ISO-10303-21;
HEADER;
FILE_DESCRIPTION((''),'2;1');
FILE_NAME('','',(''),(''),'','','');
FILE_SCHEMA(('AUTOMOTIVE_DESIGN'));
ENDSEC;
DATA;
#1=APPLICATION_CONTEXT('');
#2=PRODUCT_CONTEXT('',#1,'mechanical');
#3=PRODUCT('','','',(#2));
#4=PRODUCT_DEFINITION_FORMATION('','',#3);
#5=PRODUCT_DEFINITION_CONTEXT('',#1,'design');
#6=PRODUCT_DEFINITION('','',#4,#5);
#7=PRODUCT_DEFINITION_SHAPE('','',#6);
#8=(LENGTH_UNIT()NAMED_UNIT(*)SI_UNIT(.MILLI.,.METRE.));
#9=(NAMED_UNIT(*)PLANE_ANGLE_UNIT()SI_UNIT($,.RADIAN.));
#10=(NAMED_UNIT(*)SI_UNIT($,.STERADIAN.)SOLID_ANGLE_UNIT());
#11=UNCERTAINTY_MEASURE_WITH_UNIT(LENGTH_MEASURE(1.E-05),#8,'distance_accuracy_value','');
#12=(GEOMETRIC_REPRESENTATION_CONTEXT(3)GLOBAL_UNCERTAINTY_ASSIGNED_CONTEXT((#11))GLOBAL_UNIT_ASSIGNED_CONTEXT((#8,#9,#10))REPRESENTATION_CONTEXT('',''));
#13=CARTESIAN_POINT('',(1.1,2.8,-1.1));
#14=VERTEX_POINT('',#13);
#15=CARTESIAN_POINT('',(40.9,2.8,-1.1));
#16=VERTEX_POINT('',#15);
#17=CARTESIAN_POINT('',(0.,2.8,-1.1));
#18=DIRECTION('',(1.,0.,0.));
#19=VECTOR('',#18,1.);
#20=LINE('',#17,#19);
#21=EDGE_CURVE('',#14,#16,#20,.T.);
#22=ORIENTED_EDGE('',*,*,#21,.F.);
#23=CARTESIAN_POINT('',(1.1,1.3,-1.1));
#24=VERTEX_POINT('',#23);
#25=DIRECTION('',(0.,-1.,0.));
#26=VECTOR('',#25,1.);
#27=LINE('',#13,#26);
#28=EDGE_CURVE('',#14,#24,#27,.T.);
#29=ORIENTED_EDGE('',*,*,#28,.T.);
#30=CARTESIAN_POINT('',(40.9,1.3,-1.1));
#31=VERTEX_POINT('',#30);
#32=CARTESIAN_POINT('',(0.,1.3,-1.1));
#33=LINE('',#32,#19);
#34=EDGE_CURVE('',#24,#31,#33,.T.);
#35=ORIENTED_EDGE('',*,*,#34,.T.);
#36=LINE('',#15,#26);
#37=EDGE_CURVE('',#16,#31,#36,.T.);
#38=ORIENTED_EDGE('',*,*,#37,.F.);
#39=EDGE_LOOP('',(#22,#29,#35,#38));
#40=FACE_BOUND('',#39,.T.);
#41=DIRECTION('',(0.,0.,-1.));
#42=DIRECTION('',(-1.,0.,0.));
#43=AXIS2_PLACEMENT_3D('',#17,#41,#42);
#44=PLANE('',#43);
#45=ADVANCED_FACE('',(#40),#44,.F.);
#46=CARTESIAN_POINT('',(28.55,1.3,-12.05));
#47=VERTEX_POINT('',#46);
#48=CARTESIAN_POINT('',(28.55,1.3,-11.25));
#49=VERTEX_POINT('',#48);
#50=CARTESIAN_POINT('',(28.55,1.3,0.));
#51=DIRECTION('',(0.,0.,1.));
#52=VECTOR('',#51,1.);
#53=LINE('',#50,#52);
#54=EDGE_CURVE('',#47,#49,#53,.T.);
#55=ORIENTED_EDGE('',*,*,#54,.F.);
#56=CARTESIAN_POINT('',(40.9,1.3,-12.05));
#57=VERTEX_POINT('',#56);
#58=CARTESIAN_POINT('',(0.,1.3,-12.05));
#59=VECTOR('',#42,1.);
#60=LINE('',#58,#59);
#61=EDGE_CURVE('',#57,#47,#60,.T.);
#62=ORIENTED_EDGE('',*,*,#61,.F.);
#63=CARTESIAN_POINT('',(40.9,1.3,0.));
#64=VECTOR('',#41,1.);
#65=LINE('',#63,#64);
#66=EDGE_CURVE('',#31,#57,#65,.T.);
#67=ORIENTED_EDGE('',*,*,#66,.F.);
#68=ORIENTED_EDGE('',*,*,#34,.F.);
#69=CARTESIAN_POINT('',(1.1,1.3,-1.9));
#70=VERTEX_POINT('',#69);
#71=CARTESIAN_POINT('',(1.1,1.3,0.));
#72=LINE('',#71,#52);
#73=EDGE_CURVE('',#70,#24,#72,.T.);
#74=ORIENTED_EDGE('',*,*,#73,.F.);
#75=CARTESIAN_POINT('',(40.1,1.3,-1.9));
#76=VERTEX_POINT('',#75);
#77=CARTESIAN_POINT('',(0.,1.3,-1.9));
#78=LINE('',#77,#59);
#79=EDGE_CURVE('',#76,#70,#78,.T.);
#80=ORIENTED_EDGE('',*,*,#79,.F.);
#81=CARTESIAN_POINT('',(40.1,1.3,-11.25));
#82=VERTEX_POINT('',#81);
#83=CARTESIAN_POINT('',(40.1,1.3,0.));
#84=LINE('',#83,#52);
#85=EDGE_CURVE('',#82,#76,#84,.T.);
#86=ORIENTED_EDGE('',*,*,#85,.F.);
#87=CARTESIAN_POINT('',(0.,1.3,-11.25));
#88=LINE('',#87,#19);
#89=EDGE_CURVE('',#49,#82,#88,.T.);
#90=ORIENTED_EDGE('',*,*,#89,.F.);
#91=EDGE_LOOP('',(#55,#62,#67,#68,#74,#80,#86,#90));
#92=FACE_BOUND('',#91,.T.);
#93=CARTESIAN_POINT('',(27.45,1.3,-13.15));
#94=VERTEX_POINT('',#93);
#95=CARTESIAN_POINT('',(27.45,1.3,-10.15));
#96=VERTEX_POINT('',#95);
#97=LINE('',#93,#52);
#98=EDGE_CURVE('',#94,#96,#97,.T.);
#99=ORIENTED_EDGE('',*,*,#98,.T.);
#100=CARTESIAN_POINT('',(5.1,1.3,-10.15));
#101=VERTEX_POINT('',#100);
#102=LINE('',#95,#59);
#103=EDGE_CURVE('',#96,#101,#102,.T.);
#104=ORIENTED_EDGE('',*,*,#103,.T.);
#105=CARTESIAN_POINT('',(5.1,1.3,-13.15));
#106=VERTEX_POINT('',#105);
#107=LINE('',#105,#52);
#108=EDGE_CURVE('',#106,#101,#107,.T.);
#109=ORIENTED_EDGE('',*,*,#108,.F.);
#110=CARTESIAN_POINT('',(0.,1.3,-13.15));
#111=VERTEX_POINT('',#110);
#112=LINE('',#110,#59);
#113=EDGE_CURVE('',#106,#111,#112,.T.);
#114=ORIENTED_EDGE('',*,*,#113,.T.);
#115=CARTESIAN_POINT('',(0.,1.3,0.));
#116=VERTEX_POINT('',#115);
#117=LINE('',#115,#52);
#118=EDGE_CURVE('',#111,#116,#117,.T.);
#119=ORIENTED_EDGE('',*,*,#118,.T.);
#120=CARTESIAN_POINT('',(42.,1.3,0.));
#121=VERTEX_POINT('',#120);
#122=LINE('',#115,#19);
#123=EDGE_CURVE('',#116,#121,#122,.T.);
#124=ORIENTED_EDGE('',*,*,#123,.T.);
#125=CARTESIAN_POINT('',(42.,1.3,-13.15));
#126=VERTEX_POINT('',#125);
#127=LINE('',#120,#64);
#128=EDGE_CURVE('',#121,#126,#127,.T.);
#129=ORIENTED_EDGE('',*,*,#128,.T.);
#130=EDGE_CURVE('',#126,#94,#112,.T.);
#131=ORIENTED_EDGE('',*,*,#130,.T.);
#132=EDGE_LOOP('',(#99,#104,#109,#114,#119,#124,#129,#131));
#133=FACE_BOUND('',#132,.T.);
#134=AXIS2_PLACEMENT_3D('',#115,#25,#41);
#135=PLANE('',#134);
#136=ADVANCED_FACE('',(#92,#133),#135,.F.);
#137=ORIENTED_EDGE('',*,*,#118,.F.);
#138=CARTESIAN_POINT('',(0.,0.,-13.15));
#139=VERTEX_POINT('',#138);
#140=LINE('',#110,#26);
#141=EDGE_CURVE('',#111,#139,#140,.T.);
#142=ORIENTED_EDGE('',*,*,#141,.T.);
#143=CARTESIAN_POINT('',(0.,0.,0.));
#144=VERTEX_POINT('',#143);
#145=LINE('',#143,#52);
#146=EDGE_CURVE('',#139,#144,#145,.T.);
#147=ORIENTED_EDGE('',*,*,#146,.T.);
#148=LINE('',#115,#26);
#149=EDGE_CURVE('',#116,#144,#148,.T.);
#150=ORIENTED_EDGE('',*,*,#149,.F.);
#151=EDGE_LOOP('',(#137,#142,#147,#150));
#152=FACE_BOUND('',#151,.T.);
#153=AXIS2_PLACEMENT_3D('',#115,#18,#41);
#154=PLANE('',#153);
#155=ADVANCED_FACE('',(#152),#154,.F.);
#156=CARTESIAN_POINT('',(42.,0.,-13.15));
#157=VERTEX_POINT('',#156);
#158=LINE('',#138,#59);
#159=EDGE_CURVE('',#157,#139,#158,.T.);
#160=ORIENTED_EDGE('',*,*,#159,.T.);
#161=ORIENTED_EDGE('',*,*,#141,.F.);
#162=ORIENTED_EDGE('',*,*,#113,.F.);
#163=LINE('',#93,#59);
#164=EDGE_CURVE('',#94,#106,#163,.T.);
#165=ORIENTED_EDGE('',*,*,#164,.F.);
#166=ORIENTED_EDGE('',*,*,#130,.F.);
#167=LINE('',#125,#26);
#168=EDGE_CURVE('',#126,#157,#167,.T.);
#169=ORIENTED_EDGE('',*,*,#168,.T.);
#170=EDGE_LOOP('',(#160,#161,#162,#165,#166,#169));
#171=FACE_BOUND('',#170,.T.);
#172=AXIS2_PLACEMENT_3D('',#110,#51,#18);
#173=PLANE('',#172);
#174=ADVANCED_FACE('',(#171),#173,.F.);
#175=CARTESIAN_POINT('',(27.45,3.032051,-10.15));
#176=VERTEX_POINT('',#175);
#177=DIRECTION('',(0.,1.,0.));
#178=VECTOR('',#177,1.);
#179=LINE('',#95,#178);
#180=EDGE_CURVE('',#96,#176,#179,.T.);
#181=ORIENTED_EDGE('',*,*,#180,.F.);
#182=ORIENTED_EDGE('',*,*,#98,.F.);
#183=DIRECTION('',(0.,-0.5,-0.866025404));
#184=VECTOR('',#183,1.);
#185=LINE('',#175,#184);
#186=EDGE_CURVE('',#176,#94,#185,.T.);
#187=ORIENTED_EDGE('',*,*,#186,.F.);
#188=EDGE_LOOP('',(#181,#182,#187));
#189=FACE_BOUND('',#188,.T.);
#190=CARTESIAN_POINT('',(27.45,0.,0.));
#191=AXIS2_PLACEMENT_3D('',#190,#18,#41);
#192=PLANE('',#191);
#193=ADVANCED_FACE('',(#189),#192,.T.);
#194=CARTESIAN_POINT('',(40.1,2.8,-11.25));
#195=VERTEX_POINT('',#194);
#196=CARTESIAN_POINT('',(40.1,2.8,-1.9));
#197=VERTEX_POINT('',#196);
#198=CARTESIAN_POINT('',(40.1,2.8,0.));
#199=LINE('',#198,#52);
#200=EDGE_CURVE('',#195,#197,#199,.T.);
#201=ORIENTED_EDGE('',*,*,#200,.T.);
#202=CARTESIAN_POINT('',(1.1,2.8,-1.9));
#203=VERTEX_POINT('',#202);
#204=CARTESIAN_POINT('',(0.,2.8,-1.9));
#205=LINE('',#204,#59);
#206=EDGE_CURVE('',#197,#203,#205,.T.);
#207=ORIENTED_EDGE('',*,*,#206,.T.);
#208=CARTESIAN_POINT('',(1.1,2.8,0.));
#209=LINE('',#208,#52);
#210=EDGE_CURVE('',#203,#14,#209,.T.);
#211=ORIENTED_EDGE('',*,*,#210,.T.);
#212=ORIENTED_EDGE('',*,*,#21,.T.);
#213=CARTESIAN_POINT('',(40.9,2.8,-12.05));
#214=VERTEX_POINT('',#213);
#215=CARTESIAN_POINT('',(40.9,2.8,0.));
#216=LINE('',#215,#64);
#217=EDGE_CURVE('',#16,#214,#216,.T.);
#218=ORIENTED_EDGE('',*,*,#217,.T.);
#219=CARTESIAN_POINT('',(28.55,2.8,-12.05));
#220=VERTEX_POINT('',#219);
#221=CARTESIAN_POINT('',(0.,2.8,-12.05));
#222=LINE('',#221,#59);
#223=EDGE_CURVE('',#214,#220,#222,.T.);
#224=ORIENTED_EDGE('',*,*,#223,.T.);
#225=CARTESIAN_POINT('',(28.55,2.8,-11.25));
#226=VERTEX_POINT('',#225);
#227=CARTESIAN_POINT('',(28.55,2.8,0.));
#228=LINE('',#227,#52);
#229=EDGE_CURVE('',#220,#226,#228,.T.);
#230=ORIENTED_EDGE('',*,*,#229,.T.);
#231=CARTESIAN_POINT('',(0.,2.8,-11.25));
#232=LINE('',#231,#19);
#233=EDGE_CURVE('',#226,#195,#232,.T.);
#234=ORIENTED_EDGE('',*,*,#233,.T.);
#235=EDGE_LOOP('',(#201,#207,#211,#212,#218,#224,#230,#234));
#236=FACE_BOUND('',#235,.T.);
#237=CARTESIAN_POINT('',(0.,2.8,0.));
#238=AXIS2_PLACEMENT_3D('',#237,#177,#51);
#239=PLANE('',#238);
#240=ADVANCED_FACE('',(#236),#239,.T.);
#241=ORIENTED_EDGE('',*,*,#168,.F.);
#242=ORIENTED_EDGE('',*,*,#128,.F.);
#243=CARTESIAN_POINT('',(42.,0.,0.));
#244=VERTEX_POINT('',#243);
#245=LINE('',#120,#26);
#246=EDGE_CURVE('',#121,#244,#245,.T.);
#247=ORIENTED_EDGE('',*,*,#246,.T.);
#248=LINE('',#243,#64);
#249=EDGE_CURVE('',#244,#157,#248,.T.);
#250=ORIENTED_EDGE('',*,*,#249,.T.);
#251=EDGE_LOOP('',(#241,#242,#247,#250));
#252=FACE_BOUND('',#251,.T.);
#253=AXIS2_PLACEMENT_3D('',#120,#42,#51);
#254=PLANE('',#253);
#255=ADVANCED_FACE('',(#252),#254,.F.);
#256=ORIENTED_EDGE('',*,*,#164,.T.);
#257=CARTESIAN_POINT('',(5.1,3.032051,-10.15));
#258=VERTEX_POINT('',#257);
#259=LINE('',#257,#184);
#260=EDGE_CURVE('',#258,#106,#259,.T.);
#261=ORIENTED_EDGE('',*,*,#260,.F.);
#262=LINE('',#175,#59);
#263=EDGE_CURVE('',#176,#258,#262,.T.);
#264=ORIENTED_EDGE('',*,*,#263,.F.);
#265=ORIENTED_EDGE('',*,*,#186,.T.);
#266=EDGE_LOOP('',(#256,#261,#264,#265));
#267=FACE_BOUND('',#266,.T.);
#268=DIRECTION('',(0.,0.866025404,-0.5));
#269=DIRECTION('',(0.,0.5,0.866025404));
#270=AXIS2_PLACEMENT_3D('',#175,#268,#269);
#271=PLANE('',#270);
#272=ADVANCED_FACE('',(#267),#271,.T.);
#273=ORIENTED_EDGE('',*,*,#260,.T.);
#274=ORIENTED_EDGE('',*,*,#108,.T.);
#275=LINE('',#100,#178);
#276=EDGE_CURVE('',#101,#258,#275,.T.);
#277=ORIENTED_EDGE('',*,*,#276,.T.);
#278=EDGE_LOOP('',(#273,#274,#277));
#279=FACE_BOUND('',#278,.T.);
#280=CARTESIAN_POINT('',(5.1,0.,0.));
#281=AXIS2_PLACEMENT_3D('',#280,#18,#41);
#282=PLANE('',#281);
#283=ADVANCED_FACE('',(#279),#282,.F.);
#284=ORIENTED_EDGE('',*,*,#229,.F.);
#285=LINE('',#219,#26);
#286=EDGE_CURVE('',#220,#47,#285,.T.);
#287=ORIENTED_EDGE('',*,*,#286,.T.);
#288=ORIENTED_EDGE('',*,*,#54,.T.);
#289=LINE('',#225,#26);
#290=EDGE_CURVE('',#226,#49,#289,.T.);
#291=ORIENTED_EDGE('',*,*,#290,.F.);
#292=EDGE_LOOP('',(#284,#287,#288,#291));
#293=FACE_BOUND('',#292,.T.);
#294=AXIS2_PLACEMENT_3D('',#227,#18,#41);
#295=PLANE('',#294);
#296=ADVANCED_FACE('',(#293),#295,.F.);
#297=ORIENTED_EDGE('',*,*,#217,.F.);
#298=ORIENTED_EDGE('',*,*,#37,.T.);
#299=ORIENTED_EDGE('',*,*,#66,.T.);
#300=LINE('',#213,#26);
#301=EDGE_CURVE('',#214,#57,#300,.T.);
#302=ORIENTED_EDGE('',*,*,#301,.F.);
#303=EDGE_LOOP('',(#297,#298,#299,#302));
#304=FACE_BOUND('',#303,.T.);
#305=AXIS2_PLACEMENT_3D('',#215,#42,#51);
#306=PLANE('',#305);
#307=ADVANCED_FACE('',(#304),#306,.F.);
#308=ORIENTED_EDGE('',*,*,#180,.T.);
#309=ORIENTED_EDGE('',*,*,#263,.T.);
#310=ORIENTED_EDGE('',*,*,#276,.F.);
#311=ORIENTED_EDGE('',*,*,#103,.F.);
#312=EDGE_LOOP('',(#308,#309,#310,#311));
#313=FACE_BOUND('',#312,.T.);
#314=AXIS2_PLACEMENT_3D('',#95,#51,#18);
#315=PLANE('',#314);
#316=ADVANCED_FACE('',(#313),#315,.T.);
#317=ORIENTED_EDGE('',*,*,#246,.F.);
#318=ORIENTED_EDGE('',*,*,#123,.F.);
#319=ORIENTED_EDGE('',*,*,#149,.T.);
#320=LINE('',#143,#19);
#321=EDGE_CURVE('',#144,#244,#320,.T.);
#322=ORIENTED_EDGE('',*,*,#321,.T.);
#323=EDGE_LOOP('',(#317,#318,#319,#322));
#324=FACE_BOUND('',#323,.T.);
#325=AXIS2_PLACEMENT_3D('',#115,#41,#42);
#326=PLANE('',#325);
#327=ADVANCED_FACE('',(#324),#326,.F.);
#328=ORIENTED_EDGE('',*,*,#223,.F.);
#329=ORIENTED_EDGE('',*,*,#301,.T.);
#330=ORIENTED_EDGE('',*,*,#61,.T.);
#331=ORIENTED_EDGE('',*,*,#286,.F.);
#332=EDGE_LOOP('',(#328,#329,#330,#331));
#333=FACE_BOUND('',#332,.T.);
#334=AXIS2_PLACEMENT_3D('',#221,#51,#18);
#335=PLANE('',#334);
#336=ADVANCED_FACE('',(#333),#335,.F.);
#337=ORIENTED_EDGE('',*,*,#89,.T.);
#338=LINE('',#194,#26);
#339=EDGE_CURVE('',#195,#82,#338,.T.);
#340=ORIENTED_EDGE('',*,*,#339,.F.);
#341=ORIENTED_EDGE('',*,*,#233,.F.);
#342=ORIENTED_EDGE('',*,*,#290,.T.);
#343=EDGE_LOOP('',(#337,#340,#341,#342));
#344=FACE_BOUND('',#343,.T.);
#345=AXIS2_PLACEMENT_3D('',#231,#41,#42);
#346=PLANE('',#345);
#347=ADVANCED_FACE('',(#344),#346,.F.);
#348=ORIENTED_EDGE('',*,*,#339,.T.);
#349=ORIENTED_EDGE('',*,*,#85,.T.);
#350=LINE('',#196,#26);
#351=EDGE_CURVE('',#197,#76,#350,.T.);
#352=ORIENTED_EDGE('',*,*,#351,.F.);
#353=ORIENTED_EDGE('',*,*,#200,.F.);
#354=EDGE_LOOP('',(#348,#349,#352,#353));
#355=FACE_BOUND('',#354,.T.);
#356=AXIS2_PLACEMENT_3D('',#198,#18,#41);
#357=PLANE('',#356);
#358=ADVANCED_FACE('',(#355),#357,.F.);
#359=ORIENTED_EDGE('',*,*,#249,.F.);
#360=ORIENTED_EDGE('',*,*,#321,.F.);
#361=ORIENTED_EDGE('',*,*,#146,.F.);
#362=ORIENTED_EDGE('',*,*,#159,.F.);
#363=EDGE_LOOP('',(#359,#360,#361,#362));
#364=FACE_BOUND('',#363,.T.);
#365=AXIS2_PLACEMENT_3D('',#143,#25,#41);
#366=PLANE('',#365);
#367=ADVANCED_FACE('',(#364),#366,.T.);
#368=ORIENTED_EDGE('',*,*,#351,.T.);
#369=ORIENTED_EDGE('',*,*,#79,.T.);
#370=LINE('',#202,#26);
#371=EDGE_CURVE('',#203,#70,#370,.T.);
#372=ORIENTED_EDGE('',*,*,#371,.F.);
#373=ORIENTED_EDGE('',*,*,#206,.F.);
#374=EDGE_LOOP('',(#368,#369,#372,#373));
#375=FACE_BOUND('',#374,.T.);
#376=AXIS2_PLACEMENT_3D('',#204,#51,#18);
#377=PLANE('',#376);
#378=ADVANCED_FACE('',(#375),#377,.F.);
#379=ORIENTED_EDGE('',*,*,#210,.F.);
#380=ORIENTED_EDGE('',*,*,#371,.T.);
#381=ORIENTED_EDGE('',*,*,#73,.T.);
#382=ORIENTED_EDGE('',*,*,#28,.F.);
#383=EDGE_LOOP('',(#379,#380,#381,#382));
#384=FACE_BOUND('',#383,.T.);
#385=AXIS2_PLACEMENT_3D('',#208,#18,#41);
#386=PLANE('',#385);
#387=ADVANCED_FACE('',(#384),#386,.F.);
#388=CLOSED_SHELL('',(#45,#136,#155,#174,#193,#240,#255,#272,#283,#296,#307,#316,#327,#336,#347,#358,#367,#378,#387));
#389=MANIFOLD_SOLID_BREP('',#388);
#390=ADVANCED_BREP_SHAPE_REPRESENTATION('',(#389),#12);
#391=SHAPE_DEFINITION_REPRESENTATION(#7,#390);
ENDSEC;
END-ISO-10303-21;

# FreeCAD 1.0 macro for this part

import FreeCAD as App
import Part
import Sketcher

V = App.Vector
Q = App.Units.Quantity


def add_polygon(sketch, points):
    """Adds a closed chain of lines whose ends are joined by coincident constraints."""
    first, n = sketch.GeometryCount, len(points)
    for a, b in zip(points, points[1:] + points[:1]):
        sketch.addGeometry(Part.LineSegment(App.Vector(*a, 0), App.Vector(*b, 0)), False)
    for i in range(n):
        sketch.addConstraint(Sketcher.Constraint("Coincident", first + i, 2, first + (i + 1) % n, 1))

doc = App.newDocument("Part")
params = doc.addObject("Spreadsheet::Sheet", "Params")
for row, (alias, value) in enumerate([
    ("sketch1_width", "42 mm"),
    ("sketch1_height", "13.15 mm"),
    ("pad1_length", "1.3 mm"),
    ("sketch2_height", "3 mm"),
    ("pad2_length", "22.35 mm"),
    ("sketch3_width", "39 mm"),
    ("sketch3_width2", "39.8 mm"),
    ("sketch3_height", "0.8 mm"),
    ("sketch3_width3", "12.35 mm"),
    ("sketch3_height2", "10.95 mm"),
    ("pad3_length", "1.5 mm"),
], start=1):
    params.set(f"A{row}", alias)
    params.set(f"B{row}", "=" + value)
    params.setAlias(f"B{row}", alias)

body = doc.addObject("PartDesign::Body", "Body")

# Sketch on XZ plane
sketch1 = body.newObject("Sketcher::SketchObject", "Sketch")
sketch1.AttachmentSupport = (doc.getObject("XZ_Plane"), [""])
sketch1.MapMode = "FlatFace"
add_polygon(sketch1, [(0, -13), (0, 0), (42, 0), (42, -13)])  # lines 0-3
sketch1.addConstraint([
    Sketcher.Constraint("Vertical", 0),
    Sketcher.Constraint("Horizontal", 1),
    Sketcher.Constraint("Vertical", 2),
    Sketcher.Constraint("Horizontal", 3),
    Sketcher.Constraint("Coincident", 0, 2, -1, 1),
    Sketcher.Constraint("DistanceX", 1, 1, 1, 2, Q("42 mm")),
    Sketcher.Constraint("DistanceY", 0, 1, 0, 2, Q("13.15 mm")),
])
sketch1.setExpression("Constraints[9]", "Params.sketch1_width")
sketch1.setExpression("Constraints[10]", "Params.sketch1_height")
pad1 = body.newObject("PartDesign::Pad", "Pad")
pad1.Profile = sketch1
pad1.setExpression("Length", "Params.pad1_length")
pad1.Reversed = True

# Sketch on YZ plane
sketch2 = body.newObject("Sketcher::SketchObject", "Sketch001")
sketch2.AttachmentSupport = (doc.getObject("YZ_Plane"), [""])
sketch2.MapMode = "FlatFace"
sketch2.AttachmentOffset = App.Placement(V(0, 0, 5.1), App.Rotation())
add_polygon(sketch2, [(1.3, -13.2), (1.3, -10.2), (3, -10.2)])  # lines 0-2
sketch2.addConstraint([
    Sketcher.Constraint("Vertical", 0),
    Sketcher.Constraint("Horizontal", 1),
    Sketcher.Constraint("DistanceY", 0, 1, 0, 2, Q("3 mm")),
    Sketcher.Constraint("Angle", 2, Q("-120 deg")),
    Sketcher.Constraint("DistanceX", -1, 1, 0, 2, Q("1.3 mm")),
    Sketcher.Constraint("DistanceY", 0, 2, -1, 1, Q("10.15 mm")),
])
sketch2.setExpression("Constraints[5]", "Params.sketch2_height")
pad2 = body.newObject("PartDesign::Pad", "Pad001")
pad2.Profile = sketch2
pad2.setExpression("Length", "Params.pad2_length")

# Sketch on XZ plane
sketch3 = body.newObject("Sketcher::SketchObject", "Sketch002")
sketch3.AttachmentSupport = (doc.getObject("XZ_Plane"), [""])
sketch3.MapMode = "FlatFace"
sketch3.AttachmentOffset = App.Placement(V(0, 0, -1.3), App.Rotation())
add_polygon(sketch3, [(40.9, -1.1), (40.9, -12.1), (28.6, -12.1), (28.6, -11.2), (40.1, -11.2), (40.1, -1.9), (1.1, -1.9), (1.1, -1.1)])  # lines 0-7
sketch3.addConstraint([
    Sketcher.Constraint("Vertical", 0),
    Sketcher.Constraint("Horizontal", 1),
    Sketcher.Constraint("Vertical", 2),
    Sketcher.Constraint("Horizontal", 3),
    Sketcher.Constraint("Vertical", 4),
    Sketcher.Constraint("Horizontal", 5),
    Sketcher.Constraint("Vertical", 6),
    Sketcher.Constraint("Horizontal", 7),
    Sketcher.Constraint("Equal", 2, 6),
    Sketcher.Constraint("DistanceX", 5, 2, 5, 1, Q("39 mm")),
    Sketcher.Constraint("DistanceX", 7, 1, 7, 2, Q("39.8 mm")),
    Sketcher.Constraint("DistanceY", 2, 1, 2, 2, Q("0.8 mm")),
    Sketcher.Constraint("DistanceX", 1, 2, 1, 1, Q("12.35 mm")),
    Sketcher.Constraint("DistanceY", 0, 2, 0, 1, Q("10.95 mm")),
    Sketcher.Constraint("DistanceX", -1, 1, 0, 2, Q("40.9 mm")),
    Sketcher.Constraint("DistanceY", 4, 2, -1, 1, Q("1.9 mm")),
])
sketch3.setExpression("Constraints[17]", "Params.sketch3_width")
sketch3.setExpression("Constraints[18]", "Params.sketch3_width2")
sketch3.setExpression("Constraints[19]", "Params.sketch3_height")
sketch3.setExpression("Constraints[20]", "Params.sketch3_width3")
sketch3.setExpression("Constraints[21]", "Params.sketch3_height2")
pad3 = body.newObject("PartDesign::Pad", "Pad002")
pad3.Profile = sketch3
pad3.setExpression("Length", "Params.pad3_length")
pad3.Reversed = True

doc.recompute()
